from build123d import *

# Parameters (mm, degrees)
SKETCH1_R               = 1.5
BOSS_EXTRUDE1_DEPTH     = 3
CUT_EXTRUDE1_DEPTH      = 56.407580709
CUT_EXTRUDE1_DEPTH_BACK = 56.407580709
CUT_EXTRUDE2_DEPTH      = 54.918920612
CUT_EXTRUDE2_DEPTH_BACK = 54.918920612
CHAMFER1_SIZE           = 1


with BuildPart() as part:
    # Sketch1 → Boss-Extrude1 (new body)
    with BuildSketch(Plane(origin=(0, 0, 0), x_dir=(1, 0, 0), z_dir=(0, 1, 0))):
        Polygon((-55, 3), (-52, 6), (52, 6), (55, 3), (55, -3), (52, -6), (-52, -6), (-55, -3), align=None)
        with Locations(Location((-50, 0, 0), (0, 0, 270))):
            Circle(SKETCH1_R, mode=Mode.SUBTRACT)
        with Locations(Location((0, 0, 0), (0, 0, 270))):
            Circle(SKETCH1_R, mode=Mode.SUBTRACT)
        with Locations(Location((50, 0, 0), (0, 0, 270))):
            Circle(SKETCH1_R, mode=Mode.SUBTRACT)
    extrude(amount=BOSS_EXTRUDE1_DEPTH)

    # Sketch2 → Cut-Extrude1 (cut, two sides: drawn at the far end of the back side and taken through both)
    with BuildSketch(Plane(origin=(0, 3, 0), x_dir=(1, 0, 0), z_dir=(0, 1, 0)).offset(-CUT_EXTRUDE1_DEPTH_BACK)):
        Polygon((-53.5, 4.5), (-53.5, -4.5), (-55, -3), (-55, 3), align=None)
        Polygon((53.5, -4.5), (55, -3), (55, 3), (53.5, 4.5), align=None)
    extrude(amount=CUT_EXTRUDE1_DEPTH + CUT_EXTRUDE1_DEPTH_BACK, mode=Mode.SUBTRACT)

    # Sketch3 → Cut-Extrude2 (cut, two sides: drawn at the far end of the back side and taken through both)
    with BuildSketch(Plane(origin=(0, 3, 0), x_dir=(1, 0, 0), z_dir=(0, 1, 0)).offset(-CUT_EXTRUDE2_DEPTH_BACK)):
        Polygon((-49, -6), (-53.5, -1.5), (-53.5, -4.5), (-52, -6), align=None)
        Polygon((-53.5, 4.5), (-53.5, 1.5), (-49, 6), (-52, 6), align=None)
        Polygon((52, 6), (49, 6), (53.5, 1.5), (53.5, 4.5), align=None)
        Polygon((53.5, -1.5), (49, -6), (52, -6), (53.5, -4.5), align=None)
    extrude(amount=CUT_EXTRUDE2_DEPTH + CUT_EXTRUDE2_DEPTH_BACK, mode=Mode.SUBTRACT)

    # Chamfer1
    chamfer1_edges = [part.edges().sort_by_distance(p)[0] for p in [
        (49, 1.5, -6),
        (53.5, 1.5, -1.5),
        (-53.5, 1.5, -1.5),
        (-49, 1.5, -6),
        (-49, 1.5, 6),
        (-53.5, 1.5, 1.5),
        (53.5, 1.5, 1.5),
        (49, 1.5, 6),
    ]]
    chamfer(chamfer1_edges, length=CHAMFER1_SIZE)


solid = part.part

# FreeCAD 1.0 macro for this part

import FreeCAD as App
import Part
import Sketcher

V = App.Vector
Q = App.Units.Quantity


def edges_at(feature, points):
    """Names of the edges that pass closest to the given points."""
    edges = feature.Shape.Edges
    near = lambda p: min(range(len(edges)), key=lambda i: edges[i].distToShape(Part.Vertex(*p))[0])
    return sorted({f"Edge{near(p) + 1}" for p in points})


def add_polygon(sketch, points):
    """Adds a closed chain of lines whose ends are joined by coincident constraints."""
    first, n = sketch.GeometryCount, len(points)
    for a, b in zip(points, points[1:] + points[:1]):
        sketch.addGeometry(Part.LineSegment(App.Vector(*a, 0), App.Vector(*b, 0)), False)
    for i in range(n):
        sketch.addConstraint(Sketcher.Constraint("Coincident", first + i, 2, first + (i + 1) % n, 1))

doc = App.newDocument("Part")
body = doc.addObject("PartDesign::Body", "Body")

# Sketch on XZ plane
sketch1 = doc.addObject("Sketcher::SketchObject", "Sketch")
body.addObject(sketch1)
sketch1.AttachmentSupport = (doc.XZ_Plane, [""])
sketch1.MapMode = "FlatFace"
add_polygon(sketch1, [(-52, -6), (-55, -3), (-55, 3), (-52, 6), (52, 6), (55, 3), (55, -3), (52, -6)])  # lines 0-7
sketch1.addGeometry(Part.Circle(V(50, 0, 0), V(0, 0, 1), 1.5), False)  # 8
sketch1.addGeometry(Part.Circle(V(0, 0, 0), V(0, 0, 1), 1.5), False)  # 9
sketch1.addGeometry(Part.Circle(V(-50, 0, 0), V(0, 0, 1), 1.5), False)  # 10
sketch1.addConstraint(Sketcher.Constraint("Vertical", 1))
sketch1.addConstraint(Sketcher.Constraint("Horizontal", 3))
sketch1.addConstraint(Sketcher.Constraint("Vertical", 5))
sketch1.addConstraint(Sketcher.Constraint("Horizontal", 7))
sketch1.addConstraint(Sketcher.Constraint("Coincident", 9, 3, -1, 1))
sketch1.addConstraint(Sketcher.Constraint("Equal", 8, 9))
sketch1.addConstraint(Sketcher.Constraint("Equal", 9, 10))
sketch1.addConstraint(Sketcher.Constraint("Symmetric", 8, 3, 10, 3, -1, 1))
sketch1.addConstraint(Sketcher.Constraint("Symmetric", 0, 2, 4, 2, -1, 1))
sketch1.addConstraint(Sketcher.Constraint("Symmetric", 2, 2, 6, 2, -1, 1))
sketch1.addConstraint(Sketcher.Constraint("PointOnObject", 8, 3, -1))
sketch1.addConstraint(Sketcher.Constraint("Perpendicular", 0, 2))
sketch1.addConstraint(Sketcher.Constraint("Perpendicular", 2, 4))
sketch1.addConstraint(Sketcher.Constraint("Perpendicular", 4, 6))
sketch1.addConstraint(Sketcher.Constraint("Horizontal", 1, 2, 4, 2))
sketch1.addConstraint(Sketcher.Constraint("Vertical", 3, 2, 6, 2))
sketch1.addConstraint(Sketcher.Constraint("Diameter", 8, Q("3 mm")))
sketch1.addConstraint(Sketcher.Constraint("DistanceX", 3, 1, 3, 2, Q("104 mm")))
sketch1.addConstraint(Sketcher.Constraint("DistanceY", 1, 1, 1, 2, Q("6 mm")))
sketch1.addConstraint(Sketcher.Constraint("DistanceX", -1, 1, 8, 3, Q("50 mm")))
sketch1.addConstraint(Sketcher.Constraint("DistanceX", 0, 2, -1, 1, Q("55 mm")))
pad1 = doc.addObject("PartDesign::Pad", "Pad")
body.addObject(pad1)
pad1.Profile = sketch1
pad1.Length = 3
pad1.Reversed = True

# Sketch on XZ plane
sketch2 = doc.addObject("Sketcher::SketchObject", "Sketch001")
body.addObject(sketch2)
sketch2.AttachmentSupport = (doc.XZ_Plane, [""])
sketch2.MapMode = "FlatFace"
sketch2.AttachmentOffset = App.Placement(V(0, 0, -3), App.Rotation())
add_polygon(sketch2, [(-53.5, 4.5), (-53.5, -4.5), (-55, -3), (-55, 3)])  # lines 0-3
add_polygon(sketch2, [(53.5, 4.5), (55, 3), (55, -3), (53.5, -4.5)])  # lines 4-7
sketch2.addConstraint(Sketcher.Constraint("Vertical", 0))
sketch2.addConstraint(Sketcher.Constraint("Vertical", 2))
sketch2.addConstraint(Sketcher.Constraint("Vertical", 5))
sketch2.addConstraint(Sketcher.Constraint("Vertical", 7))
sketch2.addConstraint(Sketcher.Constraint("Symmetric", 1, 2, 4, 2, -1, 1))
sketch2.addConstraint(Sketcher.Constraint("Symmetric", 3, 2, 6, 2, -1, 1))
sketch2.addConstraint(Sketcher.Constraint("Perpendicular", 1, 3))
sketch2.addConstraint(Sketcher.Constraint("Perpendicular", 3, 4))
sketch2.addConstraint(Sketcher.Constraint("Perpendicular", 4, 6))
sketch2.addConstraint(Sketcher.Constraint("Horizontal", 2, 2, 4, 2))
sketch2.addConstraint(Sketcher.Constraint("Horizontal", 0, 2, 6, 2))
sketch2.addConstraint(Sketcher.Constraint("DistanceY", 0, 2, 0, 1, Q("9 mm")))
sketch2.addConstraint(Sketcher.Constraint("DistanceY", 2, 1, 2, 2, Q("6 mm")))
sketch2.addConstraint(Sketcher.Constraint("DistanceX", 1, 2, -1, 1, Q("55 mm")))
pocket1 = doc.addObject("PartDesign::Pocket", "Pocket")
body.addObject(pocket1)
pocket1.Profile = sketch2
pocket1.Type = "ThroughAll"
pocket1.Midplane = True

# Sketch on XZ plane
sketch3 = doc.addObject("Sketcher::SketchObject", "Sketch002")
body.addObject(sketch3)
sketch3.AttachmentSupport = (doc.XZ_Plane, [""])
sketch3.MapMode = "FlatFace"
sketch3.AttachmentOffset = App.Placement(V(0, 0, -3), App.Rotation())
add_polygon(sketch3, [(-49, 6), (-53.5, 1.5), (-53.5, 4.5), (-52, 6)])  # lines 0-3
add_polygon(sketch3, [(-53.5, -4.5), (-53.5, -1.5), (-49, -6), (-52, -6)])  # lines 4-7
add_polygon(sketch3, [(52, -6), (49, -6), (53.5, -1.5), (53.5, -4.5)])  # lines 8-11
add_polygon(sketch3, [(53.5, 1.5), (49, 6), (52, 6), (53.5, 4.5)])  # lines 12-15
sketch3.addConstraint(Sketcher.Constraint("Vertical", 1))
sketch3.addConstraint(Sketcher.Constraint("Horizontal", 3))
sketch3.addConstraint(Sketcher.Constraint("Vertical", 4))
sketch3.addConstraint(Sketcher.Constraint("Horizontal", 6))
sketch3.addConstraint(Sketcher.Constraint("Horizontal", 8))
sketch3.addConstraint(Sketcher.Constraint("Vertical", 10))
sketch3.addConstraint(Sketcher.Constraint("Horizontal", 13))
sketch3.addConstraint(Sketcher.Constraint("Vertical", 15))
sketch3.addConstraint(Sketcher.Constraint("Symmetric", 3, 2, 8, 2, -1, 1))
sketch3.addConstraint(Sketcher.Constraint("Symmetric", 0, 2, 9, 2, -1, 1))
sketch3.addConstraint(Sketcher.Constraint("Symmetric", 5, 2, 12, 2, -1, 1))
sketch3.addConstraint(Sketcher.Constraint("Symmetric", 7, 2, 14, 2, -1, 1))
sketch3.addConstraint(Sketcher.Constraint("Symmetric", 5, 2, 8, 2, -2))
sketch3.addConstraint(Sketcher.Constraint("Symmetric", 4, 2, 9, 2, -2))
sketch3.addConstraint(Sketcher.Constraint("Parallel", 0, 2))
sketch3.addConstraint(Sketcher.Constraint("Perpendicular", 2, 5))
sketch3.addConstraint(Sketcher.Constraint("Parallel", 5, 7))
sketch3.addConstraint(Sketcher.Constraint("Parallel", 9, 11))
sketch3.addConstraint(Sketcher.Constraint("Perpendicular", 11, 12))
sketch3.addConstraint(Sketcher.Constraint("Parallel", 12, 14))
sketch3.addConstraint(Sketcher.Constraint("Horizontal", 7, 2, 10, 2))
sketch3.addConstraint(Sketcher.Constraint("Horizontal", 1, 2, 14, 2))
sketch3.addConstraint(Sketcher.Constraint("DistanceX", 3, 1, 3, 2, Q("3 mm")))
sketch3.addConstraint(Sketcher.Constraint("DistanceX", 2, 2, -1, 1, Q("52 mm")))
sketch3.addConstraint(Sketcher.Constraint("DistanceY", -1, 1, 2, 2, Q("6 mm")))
sketch3.addConstraint(Sketcher.Constraint("DistanceY", 4, 2, 0, 2, Q("3 mm")))
pocket2 = doc.addObject("PartDesign::Pocket", "Pocket001")
body.addObject(pocket2)
pocket2.Profile = sketch3
pocket2.Type = "ThroughAll"
pocket2.Midplane = True
doc.recompute()

chamfer = doc.addObject("PartDesign::Chamfer", "Chamfer")
body.addObject(chamfer)
chamfer.Base = (pocket2, edges_at(pocket2, [
    (49, 1.5, -6),
    (53.5, 1.5, -1.5),
    (-53.5, 1.5, -1.5),
    (-49, 1.5, -6),
    (-49, 1.5, 6),
    (-53.5, 1.5, 1.5),
    (53.5, 1.5, 1.5),
    (49, 1.5, 6),
]))
chamfer.Size = 1

doc.recompute()
